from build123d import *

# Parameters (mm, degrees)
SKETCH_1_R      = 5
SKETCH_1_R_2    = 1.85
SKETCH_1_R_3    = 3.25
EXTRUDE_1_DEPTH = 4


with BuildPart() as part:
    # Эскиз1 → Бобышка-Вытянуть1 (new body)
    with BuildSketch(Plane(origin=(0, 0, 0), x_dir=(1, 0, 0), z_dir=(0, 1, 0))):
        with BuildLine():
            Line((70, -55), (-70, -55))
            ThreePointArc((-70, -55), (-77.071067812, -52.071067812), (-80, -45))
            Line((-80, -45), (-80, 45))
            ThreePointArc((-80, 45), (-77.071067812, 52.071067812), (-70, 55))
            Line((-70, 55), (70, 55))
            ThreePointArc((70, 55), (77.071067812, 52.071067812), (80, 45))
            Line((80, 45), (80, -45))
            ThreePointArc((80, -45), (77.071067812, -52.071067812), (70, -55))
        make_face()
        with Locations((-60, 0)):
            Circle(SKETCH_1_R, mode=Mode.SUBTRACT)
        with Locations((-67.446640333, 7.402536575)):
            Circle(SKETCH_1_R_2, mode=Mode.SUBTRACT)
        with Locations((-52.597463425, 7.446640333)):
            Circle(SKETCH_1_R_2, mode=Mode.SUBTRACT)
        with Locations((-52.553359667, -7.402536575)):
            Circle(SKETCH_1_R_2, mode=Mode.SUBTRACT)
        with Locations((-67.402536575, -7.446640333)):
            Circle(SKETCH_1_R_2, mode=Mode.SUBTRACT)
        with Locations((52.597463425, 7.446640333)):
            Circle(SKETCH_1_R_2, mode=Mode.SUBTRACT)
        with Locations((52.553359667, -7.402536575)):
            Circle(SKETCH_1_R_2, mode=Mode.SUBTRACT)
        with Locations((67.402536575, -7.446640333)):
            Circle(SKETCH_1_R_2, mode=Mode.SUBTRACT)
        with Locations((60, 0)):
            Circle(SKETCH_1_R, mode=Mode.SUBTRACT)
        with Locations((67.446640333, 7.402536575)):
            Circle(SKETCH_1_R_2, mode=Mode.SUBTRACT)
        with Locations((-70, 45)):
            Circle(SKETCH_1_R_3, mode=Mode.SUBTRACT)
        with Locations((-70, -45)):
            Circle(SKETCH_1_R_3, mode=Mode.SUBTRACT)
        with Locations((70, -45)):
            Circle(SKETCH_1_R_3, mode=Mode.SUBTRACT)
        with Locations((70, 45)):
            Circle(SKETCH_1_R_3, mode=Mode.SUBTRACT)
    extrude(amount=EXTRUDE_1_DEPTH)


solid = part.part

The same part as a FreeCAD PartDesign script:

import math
import FreeCAD as App
import Part
import Sketcher

V = App.Vector
Q = App.Units.Quantity

doc = App.newDocument("Part")
body = doc.addObject("PartDesign::Body", "Body")

# Sketch on XZ plane
sketch1 = body.newObject("Sketcher::SketchObject", "Sketch")
sketch1.AttachmentSupport = (doc.getObject("XZ_Plane"), [""])
sketch1.MapMode = "FlatFace"
sketch1.addGeometry([
    Part.LineSegment(V(-70, 55, 0), V(70, 55, 0)),  # 0
    Part.ArcOfCircle(Part.Circle(V(70, 45, 0), V(0, 0, 1), 10), math.radians(0), math.radians(90)),  # 1
    Part.LineSegment(V(80, 45, 0), V(80, -45, 0)),  # 2
    Part.ArcOfCircle(Part.Circle(V(70, -45, 0), V(0, 0, 1), 10), math.radians(-90), math.radians(0)),  # 3
    Part.LineSegment(V(70, -55, 0), V(-70, -55, 0)),  # 4
    Part.ArcOfCircle(Part.Circle(V(-70, -45, 0), V(0, 0, 1), 10), math.radians(180), math.radians(270)),  # 5
    Part.LineSegment(V(-80, -45, 0), V(-80, 45, 0)),  # 6
    Part.ArcOfCircle(Part.Circle(V(-70, 45, 0), V(0, 0, 1), 10), math.radians(90), math.radians(180)),  # 7
    Part.Circle(V(70, 45, 0), V(0, 0, 1), 3.2),  # 8
    Part.Circle(V(67.4, 7.4, 0), V(0, 0, 1), 1.9),  # 9
    Part.Circle(V(52.6, 7.4, 0), V(0, 0, 1), 1.9),  # 10
    Part.Circle(V(-70, 45, 0), V(0, 0, 1), 3.2),  # 11
    Part.Circle(V(-52.6, 7.4, 0), V(0, 0, 1), 1.9),  # 12
    Part.Circle(V(-67.4, 7.4, 0), V(0, 0, 1), 1.9),  # 13
    Part.Circle(V(60, 0, 0), V(0, 0, 1), 5),  # 14
    Part.Circle(V(67.4, -7.4, 0), V(0, 0, 1), 1.9),  # 15
    Part.Circle(V(52.6, -7.4, 0), V(0, 0, 1), 1.9),  # 16
    Part.Circle(V(70, -45, 0), V(0, 0, 1), 3.2),  # 17
    Part.Circle(V(-52.6, -7.4, 0), V(0, 0, 1), 1.9),  # 18
    Part.Circle(V(-60, 0, 0), V(0, 0, 1), 5),  # 19
    Part.Circle(V(-67.4, -7.4, 0), V(0, 0, 1), 1.9),  # 20
    Part.Circle(V(-70, -45, 0), V(0, 0, 1), 3.2),  # 21
], False)
sketch1.addConstraint([
    Sketcher.Constraint("Tangent", 0, 2, 1, 2),
    Sketcher.Constraint("Tangent", 1, 1, 2, 1),
    Sketcher.Constraint("Tangent", 2, 2, 3, 2),
    Sketcher.Constraint("Tangent", 3, 1, 4, 1),
    Sketcher.Constraint("Tangent", 4, 2, 5, 2),
    Sketcher.Constraint("Tangent", 5, 1, 6, 1),
    Sketcher.Constraint("Tangent", 6, 2, 7, 2),
    Sketcher.Constraint("Tangent", 7, 1, 0, 1),
    Sketcher.Constraint("Horizontal", 0),
    Sketcher.Constraint("Vertical", 2),
    Sketcher.Constraint("Horizontal", 4),
    Sketcher.Constraint("Vertical", 6),
    Sketcher.Constraint("Coincident", 8, 3, 1, 3),
    Sketcher.Constraint("Coincident", 11, 3, 7, 3),
    Sketcher.Constraint("Coincident", 17, 3, 3, 3),
    Sketcher.Constraint("Coincident", 21, 3, 5, 3),
    Sketcher.Constraint("Equal", 1, 3),
    Sketcher.Constraint("Equal", 3, 5),
    Sketcher.Constraint("Equal", 5, 7),
    Sketcher.Constraint("Equal", 9, 10),
    Sketcher.Constraint("Equal", 8, 11),
    Sketcher.Constraint("Equal", 10, 12),
    Sketcher.Constraint("Equal", 12, 13),
    Sketcher.Constraint("Equal", 13, 15),
    Sketcher.Constraint("Equal", 15, 16),
    Sketcher.Constraint("Equal", 11, 17),
    Sketcher.Constraint("Equal", 16, 18),
    Sketcher.Constraint("Equal", 14, 19),
    Sketcher.Constraint("Equal", 18, 20),
    Sketcher.Constraint("Equal", 17, 21),
    Sketcher.Constraint("Symmetric", 1, 3, 5, 3, -1, 1),
    Sketcher.Constraint("Symmetric", 14, 3, 19, 3, -1, 1),
    Sketcher.Constraint("Symmetric", 10, 3, 12, 3, -2),
    Sketcher.Constraint("Symmetric", 9, 3, 13, 3, -2),
    Sketcher.Constraint("Symmetric", 16, 3, 18, 3, -2),
    Sketcher.Constraint("Symmetric", 15, 3, 20, 3, -2),
    Sketcher.Constraint("PointOnObject", 14, 3, -1),
    Sketcher.Constraint("Diameter", 14, Q("10 mm")),
    Sketcher.Constraint("Radius", 1, Q("10 mm")),
    Sketcher.Constraint("Diameter", 8, Q("6.5 mm")),
    Sketcher.Constraint("Diameter", 9, Q("3.7 mm")),
    Sketcher.Constraint("DistanceX", 0, 1, 0, 2, Q("140 mm")),
    Sketcher.Constraint("DistanceY", 2, 2, 2, 1, Q("90 mm")),
    Sketcher.Constraint("DistanceX", -1, 1, 14, 3, Q("60 mm")),
    Sketcher.Constraint("DistanceY", -1, 1, 9, 3, Q("7.44664 mm")),
    Sketcher.Constraint("DistanceX", -1, 1, 10, 3, Q("52.55336 mm")),
    Sketcher.Constraint("DistanceX", -1, 1, 15, 3, Q("67.44664 mm")),
    Sketcher.Constraint("DistanceY", 16, 3, -1, 1, Q("7.44664 mm")),
    Sketcher.Constraint("DistanceX", -1, 1, 9, 3, Q("67.402537 mm")),
    Sketcher.Constraint("DistanceY", -1, 1, 10, 3, Q("7.402537 mm")),
    Sketcher.Constraint("DistanceY", 15, 3, -1, 1, Q("7.402537 mm")),
    Sketcher.Constraint("DistanceX", -1, 1, 16, 3, Q("52.597463 mm")),
])
pad1 = body.newObject("PartDesign::Pad", "Pad")
pad1.Profile = sketch1
pad1.Length = 4
pad1.Reversed = True

doc.recompute()
